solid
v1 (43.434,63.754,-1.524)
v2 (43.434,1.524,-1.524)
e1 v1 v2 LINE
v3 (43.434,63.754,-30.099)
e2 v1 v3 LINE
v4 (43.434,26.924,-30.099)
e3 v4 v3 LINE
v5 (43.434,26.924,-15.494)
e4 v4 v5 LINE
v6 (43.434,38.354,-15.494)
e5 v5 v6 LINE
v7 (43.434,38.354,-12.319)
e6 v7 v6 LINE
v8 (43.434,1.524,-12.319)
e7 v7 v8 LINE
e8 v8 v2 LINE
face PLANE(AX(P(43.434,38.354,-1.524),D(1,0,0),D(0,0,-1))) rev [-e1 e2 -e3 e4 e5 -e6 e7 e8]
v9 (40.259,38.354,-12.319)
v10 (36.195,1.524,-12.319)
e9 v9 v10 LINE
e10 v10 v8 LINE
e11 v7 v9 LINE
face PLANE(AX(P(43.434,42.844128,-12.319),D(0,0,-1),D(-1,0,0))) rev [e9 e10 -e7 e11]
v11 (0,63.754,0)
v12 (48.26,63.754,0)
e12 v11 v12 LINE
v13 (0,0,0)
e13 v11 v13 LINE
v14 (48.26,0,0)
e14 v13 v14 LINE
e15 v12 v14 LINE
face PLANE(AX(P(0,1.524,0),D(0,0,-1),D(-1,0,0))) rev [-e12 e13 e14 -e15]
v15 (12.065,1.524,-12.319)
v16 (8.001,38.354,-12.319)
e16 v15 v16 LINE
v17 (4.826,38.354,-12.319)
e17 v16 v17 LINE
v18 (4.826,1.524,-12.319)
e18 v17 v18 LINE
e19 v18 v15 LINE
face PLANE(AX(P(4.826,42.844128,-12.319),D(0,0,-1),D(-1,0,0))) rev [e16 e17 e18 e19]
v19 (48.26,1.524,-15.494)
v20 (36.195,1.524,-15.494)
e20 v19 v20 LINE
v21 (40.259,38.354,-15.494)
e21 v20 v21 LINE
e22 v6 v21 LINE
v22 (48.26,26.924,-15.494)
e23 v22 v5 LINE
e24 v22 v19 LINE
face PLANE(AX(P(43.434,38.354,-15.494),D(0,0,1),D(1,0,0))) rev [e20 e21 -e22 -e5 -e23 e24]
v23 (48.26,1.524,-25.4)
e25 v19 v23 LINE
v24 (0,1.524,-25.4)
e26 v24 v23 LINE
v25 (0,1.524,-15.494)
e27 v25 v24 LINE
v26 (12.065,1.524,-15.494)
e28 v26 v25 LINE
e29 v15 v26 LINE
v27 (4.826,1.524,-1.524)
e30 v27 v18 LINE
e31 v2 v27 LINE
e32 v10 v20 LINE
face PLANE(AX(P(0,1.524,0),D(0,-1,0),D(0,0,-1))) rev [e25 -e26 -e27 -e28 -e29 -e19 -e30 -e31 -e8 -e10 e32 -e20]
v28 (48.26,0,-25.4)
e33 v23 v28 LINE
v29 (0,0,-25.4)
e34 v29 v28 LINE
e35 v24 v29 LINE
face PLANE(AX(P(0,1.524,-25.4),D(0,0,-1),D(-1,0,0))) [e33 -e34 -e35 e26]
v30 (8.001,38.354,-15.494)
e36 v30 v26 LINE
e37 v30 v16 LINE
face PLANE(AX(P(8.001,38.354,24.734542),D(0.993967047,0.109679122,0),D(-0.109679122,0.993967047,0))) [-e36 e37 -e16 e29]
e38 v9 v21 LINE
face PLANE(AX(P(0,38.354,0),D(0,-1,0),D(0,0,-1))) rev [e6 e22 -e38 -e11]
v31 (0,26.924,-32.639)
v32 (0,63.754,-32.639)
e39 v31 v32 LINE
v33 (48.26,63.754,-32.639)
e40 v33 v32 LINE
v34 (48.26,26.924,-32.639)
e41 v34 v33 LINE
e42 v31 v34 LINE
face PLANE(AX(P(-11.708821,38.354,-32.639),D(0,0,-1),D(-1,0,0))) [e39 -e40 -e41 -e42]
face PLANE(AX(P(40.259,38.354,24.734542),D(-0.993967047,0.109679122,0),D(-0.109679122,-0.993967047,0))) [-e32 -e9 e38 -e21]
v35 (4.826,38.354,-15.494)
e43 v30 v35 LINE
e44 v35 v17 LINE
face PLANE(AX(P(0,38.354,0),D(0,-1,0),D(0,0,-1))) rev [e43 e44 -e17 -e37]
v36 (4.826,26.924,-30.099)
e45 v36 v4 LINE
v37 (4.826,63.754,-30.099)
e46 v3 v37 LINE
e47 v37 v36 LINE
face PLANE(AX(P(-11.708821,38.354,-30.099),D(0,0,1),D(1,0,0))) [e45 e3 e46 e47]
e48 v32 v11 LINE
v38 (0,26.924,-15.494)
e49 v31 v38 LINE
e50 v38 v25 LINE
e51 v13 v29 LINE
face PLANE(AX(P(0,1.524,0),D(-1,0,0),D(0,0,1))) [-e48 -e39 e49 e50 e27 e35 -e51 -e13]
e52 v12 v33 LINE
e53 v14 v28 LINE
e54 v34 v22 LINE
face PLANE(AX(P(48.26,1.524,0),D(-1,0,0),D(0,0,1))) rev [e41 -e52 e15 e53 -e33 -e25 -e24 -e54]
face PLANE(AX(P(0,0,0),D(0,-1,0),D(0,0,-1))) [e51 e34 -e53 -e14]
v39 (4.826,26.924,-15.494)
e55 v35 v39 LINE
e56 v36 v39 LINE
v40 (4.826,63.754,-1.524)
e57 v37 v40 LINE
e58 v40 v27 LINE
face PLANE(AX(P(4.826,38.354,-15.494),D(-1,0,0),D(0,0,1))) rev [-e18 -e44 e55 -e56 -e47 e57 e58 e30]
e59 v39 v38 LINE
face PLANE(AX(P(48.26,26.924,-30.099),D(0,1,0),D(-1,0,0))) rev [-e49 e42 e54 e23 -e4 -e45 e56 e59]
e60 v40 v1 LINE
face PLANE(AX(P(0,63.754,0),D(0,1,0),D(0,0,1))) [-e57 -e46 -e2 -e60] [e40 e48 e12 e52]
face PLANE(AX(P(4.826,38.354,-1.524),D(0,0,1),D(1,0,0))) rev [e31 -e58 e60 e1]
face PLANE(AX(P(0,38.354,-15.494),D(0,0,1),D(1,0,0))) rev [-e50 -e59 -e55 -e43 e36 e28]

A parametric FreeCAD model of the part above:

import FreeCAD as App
import Part
import Sketcher
Q = App.Units.Quantity


def add_polygon(sketch, points):
    """Adds a closed chain of lines whose ends are joined by coincident constraints."""
    first, n = sketch.GeometryCount, len(points)
    for a, b in zip(points, points[1:] + points[:1]):
        sketch.addGeometry(Part.LineSegment(App.Vector(*a, 0), App.Vector(*b, 0)), False)
    for i in range(n):
        sketch.addConstraint(Sketcher.Constraint("Coincident", first + i, 2, first + (i + 1) % n, 1))

doc = App.newDocument("Part")
body = doc.addObject("PartDesign::Body", "Body")

# Sketch on XZ plane
sketch1 = doc.addObject("Sketcher::SketchObject", "Sketch")
body.addObject(sketch1)
sketch1.AttachmentSupport = (doc.XZ_Plane, [""])
sketch1.MapMode = "FlatFace"
add_polygon(sketch1, [(0, -25.4), (0, 0), (48.26, 0), (48.26, -25.4)])  # lines 0-3
sketch1.addConstraint([
    Sketcher.Constraint("Vertical", 0),
    Sketcher.Constraint("Horizontal", 1),
    Sketcher.Constraint("Vertical", 2),
    Sketcher.Constraint("Horizontal", 3),
    Sketcher.Constraint("Coincident", 0, 2, -1, 1),
    Sketcher.Constraint("DistanceY", 0, 1, 0, 2, Q("1 in")),
    Sketcher.Constraint("DistanceX", 1, 1, 1, 2, Q("1.9 in")),
])
pad1 = doc.addObject("PartDesign::Pad", "Pad")
body.addObject(pad1)
pad1.Profile = sketch1
pad1.Length = Q("0.06 in")
pad1.Reversed = True

# Sketch on XZ plane
sketch2 = doc.addObject("Sketcher::SketchObject", "Sketch001")
body.addObject(sketch2)
sketch2.AttachmentSupport = (doc.XZ_Plane, [""])
sketch2.MapMode = "FlatFace"
sketch2.AttachmentOffset = App.Placement(App.Vector(0, 0, -0.06 * 25.4), App.Rotation())
add_polygon(sketch2, [(4.826, -15.494), (0, -15.494), (0, 0), (48.26, 0), (48.26, -15.494), (43.434, -15.494), (43.434, -1.524), (4.826, -1.524)])  # lines 0-7
sketch2.addConstraint([
    Sketcher.Constraint("Horizontal", 0),
    Sketcher.Constraint("Vertical", 1),
    Sketcher.Constraint("Horizontal", 2),
    Sketcher.Constraint("Vertical", 3),
    Sketcher.Constraint("Horizontal", 4),
    Sketcher.Constraint("Vertical", 5),
    Sketcher.Constraint("Horizontal", 6),
    Sketcher.Constraint("Vertical", 7),
    Sketcher.Constraint("Coincident", 1, 2, -1, 1),
    Sketcher.Constraint("Horizontal", 0, 2, 3, 2),
    Sketcher.Constraint("Equal", 0, 4),
    Sketcher.Constraint("DistanceX", 2, 1, 2, 2, Q("1.9 in")),
    Sketcher.Constraint("DistanceX", 0, 2, 0, 1, Q("0.19 in")),
    Sketcher.Constraint("DistanceY", 1, 1, 1, 2, Q("0.61 in")),
    Sketcher.Constraint("DistanceY", 5, 1, 5, 2, Q("0.55 in")),
])
pad2 = doc.addObject("PartDesign::Pad", "Pad001")
body.addObject(pad2)
pad2.Profile = sketch2
pad2.Length = Q("1.45 in")
pad2.Reversed = True

# Sketch on XZ plane
sketch3 = doc.addObject("Sketcher::SketchObject", "Sketch002")
body.addObject(sketch3)
sketch3.AttachmentSupport = (doc.XZ_Plane, [""])
sketch3.MapMode = "FlatFace"
sketch3.AttachmentOffset = App.Placement(App.Vector(0, 0, -0.06 * 25.4), App.Rotation())
add_polygon(sketch3, [(4.826, -15.494), (4.826, -12.319), (8.001, -12.319), (8.001, -15.494)])  # lines 0-3
add_polygon(sketch3, [(40.259, -15.494), (40.259, -12.319), (43.434, -12.319), (43.434, -15.494)])  # lines 4-7
sketch3.addConstraint([
    Sketcher.Constraint("Vertical", 0),
    Sketcher.Constraint("Horizontal", 1),
    Sketcher.Constraint("Vertical", 2),
    Sketcher.Constraint("Horizontal", 3),
    Sketcher.Constraint("Vertical", 4),
    Sketcher.Constraint("Horizontal", 5),
    Sketcher.Constraint("Vertical", 6),
    Sketcher.Constraint("Horizontal", 7),
    Sketcher.Constraint("Horizontal", 1, 2, 4, 2),
    Sketcher.Constraint("Horizontal", 3, 2, 6, 2),
    Sketcher.Constraint("Equal", 3, 5),
    Sketcher.Constraint("Equal", 7, 0),
    Sketcher.Constraint("DistanceX", 1, 1, 1, 2, Q("0.125 in")),
    Sketcher.Constraint("DistanceX", -1, 1, 0, 2, Q("0.19 in")),
    Sketcher.Constraint("DistanceY", 2, 2, -1, 1, Q("0.61 in")),
    Sketcher.Constraint("DistanceX", -1, 1, 5, 2, Q("1.71 in")),
])
pad3 = doc.addObject("PartDesign::Pad", "Pad002")
body.addObject(pad3)
pad3.Profile = sketch3
pad3.Length = Q("1.45 in")
pad3.Reversed = True

# Sketch on XY plane
sketch4 = doc.addObject("Sketcher::SketchObject", "Sketch003")
body.addObject(sketch4)
sketch4.AttachmentSupport = (doc.XY_Plane, [""])
sketch4.MapMode = "FlatFace"
sketch4.AttachmentOffset = App.Placement(App.Vector(0, 0, -0.61 * 25.4), App.Rotation())
add_polygon(sketch4, [(36.195, 1.524), (40.259, 38.354), (40.259, 1.524)])  # lines 0-2
add_polygon(sketch4, [(8.001, 38.354), (12.065, 1.524), (8.001, 1.524)])  # lines 3-5
sketch4.addConstraint([
    Sketcher.Constraint("Vertical", 1),
    Sketcher.Constraint("Horizontal", 2),
    Sketcher.Constraint("Horizontal", 4),
    Sketcher.Constraint("Vertical", 5),
    Sketcher.Constraint("Horizontal", 2, 2, 3, 2),
    Sketcher.Constraint("Horizontal", 0, 2, 5, 2),
    Sketcher.Constraint("Equal", 2, 4),
    Sketcher.Constraint("DistanceX", 2, 2, 2, 1, Q("0.16 in")),
    Sketcher.Constraint("DistanceY", 1, 2, 1, 1, Q("1.45 in")),
    Sketcher.Constraint("DistanceY", -1, 1, 0, 2, Q("1.51 in")),
    Sketcher.Constraint("DistanceX", 3, 2, 2, 2, Q("0.95 in")),
    Sketcher.Constraint("DistanceX", -1, 1, 0, 2, Q("1.585 in")),
])
pad4 = doc.addObject("PartDesign::Pad", "Pad003")
body.addObject(pad4)
pad4.Profile = sketch4
pad4.Length = Q("0.125 in")

# Sketch on XY plane
sketch5 = doc.addObject("Sketcher::SketchObject", "Sketch004")
body.addObject(sketch5)
sketch5.AttachmentSupport = (doc.XY_Plane, [""])
sketch5.MapMode = "FlatFace"
sketch5.AttachmentOffset = App.Placement(App.Vector(0, 0, -0.61 * 25.4), App.Rotation())
add_polygon(sketch5, [(48.26, 38.354), (48.26, 26.924), (43.434, 26.924), (43.434, 38.354)])  # lines 0-3
add_polygon(sketch5, [(4.826, 38.354), (4.826, 26.924), (0, 26.924), (0, 38.354)])  # lines 4-7
sketch5.addConstraint([
    Sketcher.Constraint("Vertical", 0),
    Sketcher.Constraint("Horizontal", 1),
    Sketcher.Constraint("Vertical", 2),
    Sketcher.Constraint("Horizontal", 3),
    Sketcher.Constraint("Vertical", 4),
    Sketcher.Constraint("Horizontal", 5),
    Sketcher.Constraint("Vertical", 6),
    Sketcher.Constraint("Horizontal", 7),
    Sketcher.Constraint("PointOnObject", 5, 2, -2),
    Sketcher.Constraint("Horizontal", 1, 2, 4, 2),
    Sketcher.Constraint("Horizontal", 3, 2, 6, 2),
    Sketcher.Constraint("Equal", 3, 5),
    Sketcher.Constraint("DistanceX", 1, 2, 1, 1, Q("0.19 in")),
    Sketcher.Constraint("DistanceY", 0, 2, 0, 1, Q("0.45 in")),
    Sketcher.Constraint("DistanceX", -1, 1, 0, 2, Q("1.9 in")),
    Sketcher.Constraint("DistanceY", -1, 1, 0, 2, Q("1.06 in")),
])
pad5 = doc.addObject("PartDesign::Pad", "Pad004")
body.addObject(pad5)
pad5.Profile = sketch5
pad5.Length = Q("0.575 in")
pad5.Reversed = True

# Sketch on YZ plane
sketch6 = doc.addObject("Sketcher::SketchObject", "Sketch005")
body.addObject(sketch6)
sketch6.AttachmentSupport = (doc.YZ_Plane, [""])
sketch6.MapMode = "FlatFace"
sketch6.AttachmentOffset = App.Placement(App.Vector(0, 0, 1.9 * 25.4), App.Rotation())
add_polygon(sketch6, [(38.354, -30.099), (26.924, -30.099), (26.924, -32.639), (38.354, -32.639)])  # lines 0-3
sketch6.addConstraint([
    Sketcher.Constraint("Horizontal", 0),
    Sketcher.Constraint("Vertical", 1),
    Sketcher.Constraint("Horizontal", 2),
    Sketcher.Constraint("Vertical", 3),
    Sketcher.Constraint("DistanceY", 1, 2, 1, 1, Q("0.1 in")),
    Sketcher.Constraint("DistanceX", 0, 2, 0, 1, Q("0.45 in")),
    Sketcher.Constraint("DistanceX", -1, 1, 0, 2, Q("1.06 in")),
    Sketcher.Constraint("DistanceY", 0, 2, -1, 1, Q("1.185 in")),
])
pad6 = doc.addObject("PartDesign::Pad", "Pad005")
body.addObject(pad6)
pad6.Profile = sketch6
pad6.Length = Q("1.9 in")
pad6.Reversed = True

# Sketch on XZ plane
sketch7 = doc.addObject("Sketcher::SketchObject", "Sketch006")
body.addObject(sketch7)
sketch7.AttachmentSupport = (doc.XZ_Plane, [""])
sketch7.MapMode = "FlatFace"
sketch7.AttachmentOffset = App.Placement(App.Vector(0, 0, -1.51 * 25.4), App.Rotation())
add_polygon(sketch7, [(0, -32.639), (0, 0), (48.26, 0), (48.26, -32.639)])  # lines 0-3
add_polygon(sketch7, [(43.434, -1.524), (4.826, -1.524), (4.826, -30.099), (43.434, -30.099)])  # lines 4-7
sketch7.addConstraint([
    Sketcher.Constraint("Vertical", 0),
    Sketcher.Constraint("Horizontal", 1),
    Sketcher.Constraint("Vertical", 2),
    Sketcher.Constraint("Horizontal", 3),
    Sketcher.Constraint("Horizontal", 4),
    Sketcher.Constraint("Vertical", 5),
    Sketcher.Constraint("Horizontal", 6),
    Sketcher.Constraint("Vertical", 7),
    Sketcher.Constraint("Coincident", 0, 2, -1, 1),
    Sketcher.Constraint("DistanceX", 1, 1, 1, 2, Q("1.9 in")),
    Sketcher.Constraint("DistanceX", 4, 2, 4, 1, Q("1.52 in")),
    Sketcher.Constraint("DistanceY", 3, 2, 5, 2, Q("0.1 in")),
    Sketcher.Constraint("DistanceY", 0, 1, 0, 2, Q("1.285 in")),
    Sketcher.Constraint("DistanceY", 5, 2, 5, 1, Q("1.125 in")),
    Sketcher.Constraint("DistanceX", -1, 1, 4, 2, Q("0.19 in")),
])
pad7 = doc.addObject("PartDesign::Pad", "Pad006")
body.addObject(pad7)
pad7.Profile = sketch7
pad7.Length = Q("1 in")
pad7.Reversed = True

doc.recompute()
